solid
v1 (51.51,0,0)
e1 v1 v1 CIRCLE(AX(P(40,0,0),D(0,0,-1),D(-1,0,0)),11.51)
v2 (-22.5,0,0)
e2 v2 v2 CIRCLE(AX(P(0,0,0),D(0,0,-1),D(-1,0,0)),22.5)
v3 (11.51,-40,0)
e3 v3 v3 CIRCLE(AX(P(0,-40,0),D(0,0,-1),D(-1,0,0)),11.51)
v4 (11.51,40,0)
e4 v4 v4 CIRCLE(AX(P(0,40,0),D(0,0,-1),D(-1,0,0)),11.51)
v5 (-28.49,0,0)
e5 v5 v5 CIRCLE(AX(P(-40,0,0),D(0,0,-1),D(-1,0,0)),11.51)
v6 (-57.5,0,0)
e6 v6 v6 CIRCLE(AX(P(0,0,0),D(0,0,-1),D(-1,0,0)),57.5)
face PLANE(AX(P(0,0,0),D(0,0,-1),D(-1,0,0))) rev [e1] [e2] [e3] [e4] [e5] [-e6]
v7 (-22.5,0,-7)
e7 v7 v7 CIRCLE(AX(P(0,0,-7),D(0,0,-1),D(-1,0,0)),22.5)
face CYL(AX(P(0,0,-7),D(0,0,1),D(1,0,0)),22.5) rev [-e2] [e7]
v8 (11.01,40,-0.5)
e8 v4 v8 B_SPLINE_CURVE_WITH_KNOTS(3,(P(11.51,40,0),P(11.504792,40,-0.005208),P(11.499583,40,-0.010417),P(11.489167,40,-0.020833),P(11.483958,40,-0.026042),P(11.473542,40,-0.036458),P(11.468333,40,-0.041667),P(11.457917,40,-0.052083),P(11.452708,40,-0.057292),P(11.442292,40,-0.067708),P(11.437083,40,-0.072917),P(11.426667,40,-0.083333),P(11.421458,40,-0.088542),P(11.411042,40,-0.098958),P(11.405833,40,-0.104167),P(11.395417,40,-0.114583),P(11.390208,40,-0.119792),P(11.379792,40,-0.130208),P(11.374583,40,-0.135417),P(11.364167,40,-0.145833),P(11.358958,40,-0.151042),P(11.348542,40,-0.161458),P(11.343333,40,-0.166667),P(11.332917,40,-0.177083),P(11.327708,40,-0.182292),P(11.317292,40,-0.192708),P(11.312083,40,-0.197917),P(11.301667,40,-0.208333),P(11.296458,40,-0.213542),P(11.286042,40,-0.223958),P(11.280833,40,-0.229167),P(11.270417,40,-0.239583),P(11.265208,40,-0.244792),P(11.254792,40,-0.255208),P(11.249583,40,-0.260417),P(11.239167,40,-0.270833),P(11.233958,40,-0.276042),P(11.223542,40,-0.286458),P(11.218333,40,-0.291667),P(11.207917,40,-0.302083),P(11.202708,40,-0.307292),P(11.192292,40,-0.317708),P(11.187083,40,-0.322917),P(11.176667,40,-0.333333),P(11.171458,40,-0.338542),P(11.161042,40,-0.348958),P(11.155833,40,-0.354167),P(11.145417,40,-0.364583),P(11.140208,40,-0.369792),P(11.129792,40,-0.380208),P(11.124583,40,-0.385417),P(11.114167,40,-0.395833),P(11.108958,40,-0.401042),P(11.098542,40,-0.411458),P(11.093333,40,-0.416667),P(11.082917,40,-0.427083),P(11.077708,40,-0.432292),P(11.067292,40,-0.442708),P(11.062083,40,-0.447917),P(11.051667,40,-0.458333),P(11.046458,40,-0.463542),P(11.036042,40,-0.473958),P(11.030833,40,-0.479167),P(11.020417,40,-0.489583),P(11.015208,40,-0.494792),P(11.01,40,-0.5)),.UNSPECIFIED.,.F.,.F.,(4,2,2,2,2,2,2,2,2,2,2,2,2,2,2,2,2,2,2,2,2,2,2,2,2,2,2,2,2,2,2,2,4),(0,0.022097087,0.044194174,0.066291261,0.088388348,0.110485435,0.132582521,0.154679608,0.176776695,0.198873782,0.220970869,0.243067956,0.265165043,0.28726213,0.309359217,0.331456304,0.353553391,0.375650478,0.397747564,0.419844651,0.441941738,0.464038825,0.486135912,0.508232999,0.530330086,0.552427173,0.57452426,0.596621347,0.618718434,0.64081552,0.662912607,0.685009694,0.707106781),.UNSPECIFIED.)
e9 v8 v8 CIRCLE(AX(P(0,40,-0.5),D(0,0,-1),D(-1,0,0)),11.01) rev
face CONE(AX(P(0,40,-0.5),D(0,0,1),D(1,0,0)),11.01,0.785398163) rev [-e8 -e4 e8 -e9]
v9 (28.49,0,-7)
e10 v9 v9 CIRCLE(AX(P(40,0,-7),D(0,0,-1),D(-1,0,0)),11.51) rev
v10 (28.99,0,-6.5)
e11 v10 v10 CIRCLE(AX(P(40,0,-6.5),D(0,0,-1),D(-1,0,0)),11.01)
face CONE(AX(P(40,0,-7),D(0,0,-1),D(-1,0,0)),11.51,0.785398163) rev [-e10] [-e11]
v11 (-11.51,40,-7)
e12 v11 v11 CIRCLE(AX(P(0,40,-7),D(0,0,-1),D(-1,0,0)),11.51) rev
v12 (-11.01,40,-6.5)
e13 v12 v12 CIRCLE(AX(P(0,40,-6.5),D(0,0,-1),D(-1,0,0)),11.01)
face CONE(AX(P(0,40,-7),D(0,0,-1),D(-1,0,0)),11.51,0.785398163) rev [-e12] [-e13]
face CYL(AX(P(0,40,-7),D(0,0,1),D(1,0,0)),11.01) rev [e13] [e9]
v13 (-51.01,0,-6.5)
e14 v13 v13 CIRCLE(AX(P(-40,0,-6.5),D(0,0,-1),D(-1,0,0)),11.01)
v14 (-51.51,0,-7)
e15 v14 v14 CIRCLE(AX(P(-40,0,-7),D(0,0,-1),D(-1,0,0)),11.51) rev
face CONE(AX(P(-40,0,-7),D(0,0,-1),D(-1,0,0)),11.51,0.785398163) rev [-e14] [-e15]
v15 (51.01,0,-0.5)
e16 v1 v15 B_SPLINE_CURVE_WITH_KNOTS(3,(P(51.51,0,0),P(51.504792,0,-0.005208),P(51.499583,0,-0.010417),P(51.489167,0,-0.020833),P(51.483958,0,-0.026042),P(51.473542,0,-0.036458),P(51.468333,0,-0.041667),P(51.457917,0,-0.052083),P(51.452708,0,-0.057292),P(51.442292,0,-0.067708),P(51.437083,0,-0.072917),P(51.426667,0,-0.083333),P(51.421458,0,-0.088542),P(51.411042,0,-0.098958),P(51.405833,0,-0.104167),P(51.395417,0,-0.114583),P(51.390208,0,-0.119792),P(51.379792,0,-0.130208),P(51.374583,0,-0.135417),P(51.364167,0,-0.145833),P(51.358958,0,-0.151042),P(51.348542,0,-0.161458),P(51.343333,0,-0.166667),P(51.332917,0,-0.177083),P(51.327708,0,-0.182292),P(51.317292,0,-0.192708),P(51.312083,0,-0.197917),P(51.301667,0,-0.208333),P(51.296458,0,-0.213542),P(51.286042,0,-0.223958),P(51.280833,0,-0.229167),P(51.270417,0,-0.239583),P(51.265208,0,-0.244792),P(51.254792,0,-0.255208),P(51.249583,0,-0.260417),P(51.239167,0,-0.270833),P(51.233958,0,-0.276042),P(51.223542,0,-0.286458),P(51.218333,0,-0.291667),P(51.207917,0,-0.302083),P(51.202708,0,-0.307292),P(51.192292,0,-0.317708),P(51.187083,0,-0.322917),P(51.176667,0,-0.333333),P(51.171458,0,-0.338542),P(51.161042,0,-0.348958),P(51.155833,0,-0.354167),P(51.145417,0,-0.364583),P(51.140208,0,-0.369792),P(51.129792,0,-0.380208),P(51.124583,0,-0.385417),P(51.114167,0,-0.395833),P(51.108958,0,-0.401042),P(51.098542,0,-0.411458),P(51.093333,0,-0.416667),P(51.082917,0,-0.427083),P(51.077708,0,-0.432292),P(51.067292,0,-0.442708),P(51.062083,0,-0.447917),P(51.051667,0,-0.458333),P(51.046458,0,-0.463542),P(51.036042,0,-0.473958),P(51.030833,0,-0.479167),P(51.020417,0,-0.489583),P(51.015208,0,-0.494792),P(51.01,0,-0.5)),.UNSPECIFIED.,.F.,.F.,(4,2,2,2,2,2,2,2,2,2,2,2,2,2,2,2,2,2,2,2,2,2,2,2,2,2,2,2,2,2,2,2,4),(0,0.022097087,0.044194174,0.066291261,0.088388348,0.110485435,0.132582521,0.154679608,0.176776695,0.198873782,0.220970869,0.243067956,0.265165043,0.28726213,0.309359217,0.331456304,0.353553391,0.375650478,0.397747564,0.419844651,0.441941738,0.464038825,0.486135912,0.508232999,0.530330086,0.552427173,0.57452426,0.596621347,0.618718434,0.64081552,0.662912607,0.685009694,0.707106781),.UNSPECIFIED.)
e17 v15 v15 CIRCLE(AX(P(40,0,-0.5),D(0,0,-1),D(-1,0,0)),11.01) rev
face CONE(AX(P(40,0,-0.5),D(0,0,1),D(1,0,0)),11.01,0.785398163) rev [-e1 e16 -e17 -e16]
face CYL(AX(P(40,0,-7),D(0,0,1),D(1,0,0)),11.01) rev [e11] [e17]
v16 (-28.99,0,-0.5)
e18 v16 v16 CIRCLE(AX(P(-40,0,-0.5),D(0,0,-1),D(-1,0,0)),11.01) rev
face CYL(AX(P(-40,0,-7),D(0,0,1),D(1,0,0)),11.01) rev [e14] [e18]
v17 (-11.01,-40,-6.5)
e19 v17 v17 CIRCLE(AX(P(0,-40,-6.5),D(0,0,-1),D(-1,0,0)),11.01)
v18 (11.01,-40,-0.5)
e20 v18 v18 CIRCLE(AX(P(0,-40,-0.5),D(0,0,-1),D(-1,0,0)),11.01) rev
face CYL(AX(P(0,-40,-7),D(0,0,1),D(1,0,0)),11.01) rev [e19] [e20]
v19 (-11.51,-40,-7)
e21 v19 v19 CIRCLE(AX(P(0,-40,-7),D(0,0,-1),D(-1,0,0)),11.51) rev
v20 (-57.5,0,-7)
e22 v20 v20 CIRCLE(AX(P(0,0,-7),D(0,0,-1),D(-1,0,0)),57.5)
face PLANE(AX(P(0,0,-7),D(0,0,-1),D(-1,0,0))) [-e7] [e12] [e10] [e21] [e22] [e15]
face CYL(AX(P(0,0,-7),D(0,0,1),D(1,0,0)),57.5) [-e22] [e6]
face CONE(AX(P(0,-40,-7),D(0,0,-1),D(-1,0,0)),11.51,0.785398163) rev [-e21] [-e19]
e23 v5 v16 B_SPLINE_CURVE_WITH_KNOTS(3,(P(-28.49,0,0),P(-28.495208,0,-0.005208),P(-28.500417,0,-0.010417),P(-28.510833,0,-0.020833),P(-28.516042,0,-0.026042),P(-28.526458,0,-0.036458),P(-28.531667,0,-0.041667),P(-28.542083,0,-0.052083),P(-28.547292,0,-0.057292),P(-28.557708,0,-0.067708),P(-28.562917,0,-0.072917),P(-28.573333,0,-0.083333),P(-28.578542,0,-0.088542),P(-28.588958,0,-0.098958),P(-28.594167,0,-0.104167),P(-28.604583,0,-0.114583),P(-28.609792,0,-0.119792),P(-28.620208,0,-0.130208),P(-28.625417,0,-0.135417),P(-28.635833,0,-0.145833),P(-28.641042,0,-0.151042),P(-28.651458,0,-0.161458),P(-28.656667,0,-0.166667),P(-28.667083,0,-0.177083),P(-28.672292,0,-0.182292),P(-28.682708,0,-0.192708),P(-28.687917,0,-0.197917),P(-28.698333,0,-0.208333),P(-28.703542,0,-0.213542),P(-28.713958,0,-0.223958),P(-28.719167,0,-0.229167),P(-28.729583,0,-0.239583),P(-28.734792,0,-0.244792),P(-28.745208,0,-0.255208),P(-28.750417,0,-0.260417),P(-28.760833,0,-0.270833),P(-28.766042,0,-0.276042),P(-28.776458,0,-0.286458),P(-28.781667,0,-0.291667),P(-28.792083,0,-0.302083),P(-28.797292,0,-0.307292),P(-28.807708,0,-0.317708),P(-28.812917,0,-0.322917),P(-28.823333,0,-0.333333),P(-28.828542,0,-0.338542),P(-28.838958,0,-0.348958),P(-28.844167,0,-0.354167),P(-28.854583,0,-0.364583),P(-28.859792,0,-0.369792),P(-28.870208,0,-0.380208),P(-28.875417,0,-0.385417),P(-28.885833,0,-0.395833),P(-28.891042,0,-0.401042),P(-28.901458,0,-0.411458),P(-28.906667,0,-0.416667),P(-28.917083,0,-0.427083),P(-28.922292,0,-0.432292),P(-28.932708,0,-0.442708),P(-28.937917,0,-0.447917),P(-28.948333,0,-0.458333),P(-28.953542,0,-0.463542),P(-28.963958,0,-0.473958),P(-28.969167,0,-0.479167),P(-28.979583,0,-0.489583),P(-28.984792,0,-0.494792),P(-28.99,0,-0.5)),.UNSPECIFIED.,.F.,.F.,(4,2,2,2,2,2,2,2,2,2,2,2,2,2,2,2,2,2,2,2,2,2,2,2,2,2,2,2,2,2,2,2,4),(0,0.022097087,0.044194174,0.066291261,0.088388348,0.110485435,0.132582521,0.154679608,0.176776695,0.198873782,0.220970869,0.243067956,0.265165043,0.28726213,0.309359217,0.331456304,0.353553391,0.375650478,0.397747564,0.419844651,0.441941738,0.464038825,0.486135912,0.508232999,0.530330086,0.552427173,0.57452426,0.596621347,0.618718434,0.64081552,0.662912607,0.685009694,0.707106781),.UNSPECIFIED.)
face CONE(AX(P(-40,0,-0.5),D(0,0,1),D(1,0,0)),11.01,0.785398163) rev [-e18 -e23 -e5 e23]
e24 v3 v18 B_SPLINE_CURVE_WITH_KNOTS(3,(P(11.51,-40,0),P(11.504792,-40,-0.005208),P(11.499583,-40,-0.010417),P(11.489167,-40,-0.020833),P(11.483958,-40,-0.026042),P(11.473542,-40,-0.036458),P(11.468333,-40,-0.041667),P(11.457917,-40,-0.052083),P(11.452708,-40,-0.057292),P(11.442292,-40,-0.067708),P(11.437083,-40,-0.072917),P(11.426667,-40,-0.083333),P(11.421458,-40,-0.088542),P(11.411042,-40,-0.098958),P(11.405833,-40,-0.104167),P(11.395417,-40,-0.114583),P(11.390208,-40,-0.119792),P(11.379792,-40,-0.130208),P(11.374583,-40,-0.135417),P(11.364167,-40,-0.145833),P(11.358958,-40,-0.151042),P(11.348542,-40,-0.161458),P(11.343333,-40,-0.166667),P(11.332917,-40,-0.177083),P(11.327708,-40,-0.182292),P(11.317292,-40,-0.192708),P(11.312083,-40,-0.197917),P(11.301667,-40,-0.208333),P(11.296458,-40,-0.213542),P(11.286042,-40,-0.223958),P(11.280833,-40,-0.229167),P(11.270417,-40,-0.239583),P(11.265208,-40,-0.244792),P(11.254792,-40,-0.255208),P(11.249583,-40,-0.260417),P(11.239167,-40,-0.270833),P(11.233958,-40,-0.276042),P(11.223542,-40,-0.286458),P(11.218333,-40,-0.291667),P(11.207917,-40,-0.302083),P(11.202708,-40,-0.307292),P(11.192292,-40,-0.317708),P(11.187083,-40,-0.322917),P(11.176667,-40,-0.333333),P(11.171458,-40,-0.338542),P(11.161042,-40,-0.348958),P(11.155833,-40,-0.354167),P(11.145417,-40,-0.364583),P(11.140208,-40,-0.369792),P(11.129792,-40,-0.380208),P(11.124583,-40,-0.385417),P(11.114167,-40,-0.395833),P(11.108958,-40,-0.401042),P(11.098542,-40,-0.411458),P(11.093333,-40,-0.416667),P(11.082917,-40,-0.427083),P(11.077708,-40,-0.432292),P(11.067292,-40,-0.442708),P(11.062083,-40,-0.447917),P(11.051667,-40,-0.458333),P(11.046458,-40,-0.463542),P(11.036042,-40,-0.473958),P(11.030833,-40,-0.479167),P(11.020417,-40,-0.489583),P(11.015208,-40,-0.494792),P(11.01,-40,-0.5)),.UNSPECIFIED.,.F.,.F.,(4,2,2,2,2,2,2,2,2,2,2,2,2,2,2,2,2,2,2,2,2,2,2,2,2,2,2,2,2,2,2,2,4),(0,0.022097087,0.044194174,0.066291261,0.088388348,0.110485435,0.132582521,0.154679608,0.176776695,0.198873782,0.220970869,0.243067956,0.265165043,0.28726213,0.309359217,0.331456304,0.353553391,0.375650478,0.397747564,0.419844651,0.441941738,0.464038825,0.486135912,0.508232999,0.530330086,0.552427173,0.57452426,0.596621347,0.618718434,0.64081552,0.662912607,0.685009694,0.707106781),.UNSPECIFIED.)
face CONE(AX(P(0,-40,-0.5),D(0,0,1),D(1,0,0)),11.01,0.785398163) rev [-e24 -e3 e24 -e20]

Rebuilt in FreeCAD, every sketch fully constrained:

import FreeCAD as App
import Part
import Sketcher
from FreeCAD import Vector


def edges_at(feature, points):
    """Names of the edges that pass closest to the given points."""
    edges = feature.Shape.Edges
    near = lambda p: min(range(len(edges)), key=lambda i: edges[i].distToShape(Part.Vertex(*p))[0])
    return sorted({f"Edge{near(p) + 1}" for p in points})

doc = App.newDocument("Part")
body = doc.addObject("PartDesign::Body", "Body")

# Sketch on XY plane
sketch1 = doc.addObject("Sketcher::SketchObject", "Sketch")
body.addObject(sketch1)
sketch1.AttachmentSupport = (doc.XY_Plane, [""])
sketch1.MapMode = "FlatFace"
sketch1.addGeometry(Part.Circle(Vector(0, 0, 0), Vector(0, 0, 1), 57.5), False)
sketch1.addGeometry(Part.Circle(Vector(0, 0, 0), Vector(0, 0, 1), 22.5), False)
sketch1.addConstraint(Sketcher.Constraint("Coincident", 0, 3, -1, 1))
sketch1.addConstraint(Sketcher.Constraint("Coincident", 1, 3, -1, 1))
sketch1.addConstraint(Sketcher.Constraint("Diameter", 0, 115.0))
sketch1.addConstraint(Sketcher.Constraint("Diameter", 1, 45.0))
pad1 = doc.addObject("PartDesign::Pad", "Pad")
body.addObject(pad1)
pad1.Profile = sketch1
pad1.Length = 7
pad1.Reversed = True

# Sketch on XY plane
sketch2 = doc.addObject("Sketcher::SketchObject", "Sketch001")
body.addObject(sketch2)
sketch2.AttachmentSupport = (doc.XY_Plane, [""])
sketch2.MapMode = "FlatFace"
sketch2.addGeometry(Part.Circle(Vector(-40, 0, 0), Vector(0, 0, 1), 11.01), False)
sketch2.addConstraint(Sketcher.Constraint("PointOnObject", 0, 3, -1))
sketch2.addConstraint(Sketcher.Constraint("Diameter", 0, 22.02))
sketch2.addConstraint(Sketcher.Constraint("DistanceX", 0, 3, -1, 1, 40.0))
pocket1 = doc.addObject("PartDesign::Pocket", "Pocket")
body.addObject(pocket1)
pocket1.Profile = sketch2
pocket1.Type = "ThroughAll"
doc.recompute()

chamfer = doc.addObject("PartDesign::Chamfer", "Chamfer")
body.addObject(chamfer)
chamfer.Base = (pocket1, edges_at(pocket1, [(-51.01, 0, -7), (-51.01, 0, 0)]))
chamfer.Size = 0.5
doc.recompute()

polarpattern = doc.addObject("PartDesign::PolarPattern", "PolarPattern")
body.addObject(polarpattern)
polarpattern.Originals = [pocket1]
polarpattern.Axis = (doc.Z_Axis, [""])
polarpattern.Angle = 360
polarpattern.Occurrences = 4
body.Tip = polarpattern
doc.recompute()

chamfer2 = doc.addObject("PartDesign::Chamfer", "Chamfer001")
body.addObject(chamfer2)
chamfer2.Base = (polarpattern, edges_at(polarpattern, [
    (0, -51.01, -7),
    (0, -51.01, 0),
    (51.01, 0, -7),
    (51.01, 0, 0),
    (0, 51.01, -7),
    (0, 51.01, 0),
]))
chamfer2.Size = 0.5

doc.recompute()
